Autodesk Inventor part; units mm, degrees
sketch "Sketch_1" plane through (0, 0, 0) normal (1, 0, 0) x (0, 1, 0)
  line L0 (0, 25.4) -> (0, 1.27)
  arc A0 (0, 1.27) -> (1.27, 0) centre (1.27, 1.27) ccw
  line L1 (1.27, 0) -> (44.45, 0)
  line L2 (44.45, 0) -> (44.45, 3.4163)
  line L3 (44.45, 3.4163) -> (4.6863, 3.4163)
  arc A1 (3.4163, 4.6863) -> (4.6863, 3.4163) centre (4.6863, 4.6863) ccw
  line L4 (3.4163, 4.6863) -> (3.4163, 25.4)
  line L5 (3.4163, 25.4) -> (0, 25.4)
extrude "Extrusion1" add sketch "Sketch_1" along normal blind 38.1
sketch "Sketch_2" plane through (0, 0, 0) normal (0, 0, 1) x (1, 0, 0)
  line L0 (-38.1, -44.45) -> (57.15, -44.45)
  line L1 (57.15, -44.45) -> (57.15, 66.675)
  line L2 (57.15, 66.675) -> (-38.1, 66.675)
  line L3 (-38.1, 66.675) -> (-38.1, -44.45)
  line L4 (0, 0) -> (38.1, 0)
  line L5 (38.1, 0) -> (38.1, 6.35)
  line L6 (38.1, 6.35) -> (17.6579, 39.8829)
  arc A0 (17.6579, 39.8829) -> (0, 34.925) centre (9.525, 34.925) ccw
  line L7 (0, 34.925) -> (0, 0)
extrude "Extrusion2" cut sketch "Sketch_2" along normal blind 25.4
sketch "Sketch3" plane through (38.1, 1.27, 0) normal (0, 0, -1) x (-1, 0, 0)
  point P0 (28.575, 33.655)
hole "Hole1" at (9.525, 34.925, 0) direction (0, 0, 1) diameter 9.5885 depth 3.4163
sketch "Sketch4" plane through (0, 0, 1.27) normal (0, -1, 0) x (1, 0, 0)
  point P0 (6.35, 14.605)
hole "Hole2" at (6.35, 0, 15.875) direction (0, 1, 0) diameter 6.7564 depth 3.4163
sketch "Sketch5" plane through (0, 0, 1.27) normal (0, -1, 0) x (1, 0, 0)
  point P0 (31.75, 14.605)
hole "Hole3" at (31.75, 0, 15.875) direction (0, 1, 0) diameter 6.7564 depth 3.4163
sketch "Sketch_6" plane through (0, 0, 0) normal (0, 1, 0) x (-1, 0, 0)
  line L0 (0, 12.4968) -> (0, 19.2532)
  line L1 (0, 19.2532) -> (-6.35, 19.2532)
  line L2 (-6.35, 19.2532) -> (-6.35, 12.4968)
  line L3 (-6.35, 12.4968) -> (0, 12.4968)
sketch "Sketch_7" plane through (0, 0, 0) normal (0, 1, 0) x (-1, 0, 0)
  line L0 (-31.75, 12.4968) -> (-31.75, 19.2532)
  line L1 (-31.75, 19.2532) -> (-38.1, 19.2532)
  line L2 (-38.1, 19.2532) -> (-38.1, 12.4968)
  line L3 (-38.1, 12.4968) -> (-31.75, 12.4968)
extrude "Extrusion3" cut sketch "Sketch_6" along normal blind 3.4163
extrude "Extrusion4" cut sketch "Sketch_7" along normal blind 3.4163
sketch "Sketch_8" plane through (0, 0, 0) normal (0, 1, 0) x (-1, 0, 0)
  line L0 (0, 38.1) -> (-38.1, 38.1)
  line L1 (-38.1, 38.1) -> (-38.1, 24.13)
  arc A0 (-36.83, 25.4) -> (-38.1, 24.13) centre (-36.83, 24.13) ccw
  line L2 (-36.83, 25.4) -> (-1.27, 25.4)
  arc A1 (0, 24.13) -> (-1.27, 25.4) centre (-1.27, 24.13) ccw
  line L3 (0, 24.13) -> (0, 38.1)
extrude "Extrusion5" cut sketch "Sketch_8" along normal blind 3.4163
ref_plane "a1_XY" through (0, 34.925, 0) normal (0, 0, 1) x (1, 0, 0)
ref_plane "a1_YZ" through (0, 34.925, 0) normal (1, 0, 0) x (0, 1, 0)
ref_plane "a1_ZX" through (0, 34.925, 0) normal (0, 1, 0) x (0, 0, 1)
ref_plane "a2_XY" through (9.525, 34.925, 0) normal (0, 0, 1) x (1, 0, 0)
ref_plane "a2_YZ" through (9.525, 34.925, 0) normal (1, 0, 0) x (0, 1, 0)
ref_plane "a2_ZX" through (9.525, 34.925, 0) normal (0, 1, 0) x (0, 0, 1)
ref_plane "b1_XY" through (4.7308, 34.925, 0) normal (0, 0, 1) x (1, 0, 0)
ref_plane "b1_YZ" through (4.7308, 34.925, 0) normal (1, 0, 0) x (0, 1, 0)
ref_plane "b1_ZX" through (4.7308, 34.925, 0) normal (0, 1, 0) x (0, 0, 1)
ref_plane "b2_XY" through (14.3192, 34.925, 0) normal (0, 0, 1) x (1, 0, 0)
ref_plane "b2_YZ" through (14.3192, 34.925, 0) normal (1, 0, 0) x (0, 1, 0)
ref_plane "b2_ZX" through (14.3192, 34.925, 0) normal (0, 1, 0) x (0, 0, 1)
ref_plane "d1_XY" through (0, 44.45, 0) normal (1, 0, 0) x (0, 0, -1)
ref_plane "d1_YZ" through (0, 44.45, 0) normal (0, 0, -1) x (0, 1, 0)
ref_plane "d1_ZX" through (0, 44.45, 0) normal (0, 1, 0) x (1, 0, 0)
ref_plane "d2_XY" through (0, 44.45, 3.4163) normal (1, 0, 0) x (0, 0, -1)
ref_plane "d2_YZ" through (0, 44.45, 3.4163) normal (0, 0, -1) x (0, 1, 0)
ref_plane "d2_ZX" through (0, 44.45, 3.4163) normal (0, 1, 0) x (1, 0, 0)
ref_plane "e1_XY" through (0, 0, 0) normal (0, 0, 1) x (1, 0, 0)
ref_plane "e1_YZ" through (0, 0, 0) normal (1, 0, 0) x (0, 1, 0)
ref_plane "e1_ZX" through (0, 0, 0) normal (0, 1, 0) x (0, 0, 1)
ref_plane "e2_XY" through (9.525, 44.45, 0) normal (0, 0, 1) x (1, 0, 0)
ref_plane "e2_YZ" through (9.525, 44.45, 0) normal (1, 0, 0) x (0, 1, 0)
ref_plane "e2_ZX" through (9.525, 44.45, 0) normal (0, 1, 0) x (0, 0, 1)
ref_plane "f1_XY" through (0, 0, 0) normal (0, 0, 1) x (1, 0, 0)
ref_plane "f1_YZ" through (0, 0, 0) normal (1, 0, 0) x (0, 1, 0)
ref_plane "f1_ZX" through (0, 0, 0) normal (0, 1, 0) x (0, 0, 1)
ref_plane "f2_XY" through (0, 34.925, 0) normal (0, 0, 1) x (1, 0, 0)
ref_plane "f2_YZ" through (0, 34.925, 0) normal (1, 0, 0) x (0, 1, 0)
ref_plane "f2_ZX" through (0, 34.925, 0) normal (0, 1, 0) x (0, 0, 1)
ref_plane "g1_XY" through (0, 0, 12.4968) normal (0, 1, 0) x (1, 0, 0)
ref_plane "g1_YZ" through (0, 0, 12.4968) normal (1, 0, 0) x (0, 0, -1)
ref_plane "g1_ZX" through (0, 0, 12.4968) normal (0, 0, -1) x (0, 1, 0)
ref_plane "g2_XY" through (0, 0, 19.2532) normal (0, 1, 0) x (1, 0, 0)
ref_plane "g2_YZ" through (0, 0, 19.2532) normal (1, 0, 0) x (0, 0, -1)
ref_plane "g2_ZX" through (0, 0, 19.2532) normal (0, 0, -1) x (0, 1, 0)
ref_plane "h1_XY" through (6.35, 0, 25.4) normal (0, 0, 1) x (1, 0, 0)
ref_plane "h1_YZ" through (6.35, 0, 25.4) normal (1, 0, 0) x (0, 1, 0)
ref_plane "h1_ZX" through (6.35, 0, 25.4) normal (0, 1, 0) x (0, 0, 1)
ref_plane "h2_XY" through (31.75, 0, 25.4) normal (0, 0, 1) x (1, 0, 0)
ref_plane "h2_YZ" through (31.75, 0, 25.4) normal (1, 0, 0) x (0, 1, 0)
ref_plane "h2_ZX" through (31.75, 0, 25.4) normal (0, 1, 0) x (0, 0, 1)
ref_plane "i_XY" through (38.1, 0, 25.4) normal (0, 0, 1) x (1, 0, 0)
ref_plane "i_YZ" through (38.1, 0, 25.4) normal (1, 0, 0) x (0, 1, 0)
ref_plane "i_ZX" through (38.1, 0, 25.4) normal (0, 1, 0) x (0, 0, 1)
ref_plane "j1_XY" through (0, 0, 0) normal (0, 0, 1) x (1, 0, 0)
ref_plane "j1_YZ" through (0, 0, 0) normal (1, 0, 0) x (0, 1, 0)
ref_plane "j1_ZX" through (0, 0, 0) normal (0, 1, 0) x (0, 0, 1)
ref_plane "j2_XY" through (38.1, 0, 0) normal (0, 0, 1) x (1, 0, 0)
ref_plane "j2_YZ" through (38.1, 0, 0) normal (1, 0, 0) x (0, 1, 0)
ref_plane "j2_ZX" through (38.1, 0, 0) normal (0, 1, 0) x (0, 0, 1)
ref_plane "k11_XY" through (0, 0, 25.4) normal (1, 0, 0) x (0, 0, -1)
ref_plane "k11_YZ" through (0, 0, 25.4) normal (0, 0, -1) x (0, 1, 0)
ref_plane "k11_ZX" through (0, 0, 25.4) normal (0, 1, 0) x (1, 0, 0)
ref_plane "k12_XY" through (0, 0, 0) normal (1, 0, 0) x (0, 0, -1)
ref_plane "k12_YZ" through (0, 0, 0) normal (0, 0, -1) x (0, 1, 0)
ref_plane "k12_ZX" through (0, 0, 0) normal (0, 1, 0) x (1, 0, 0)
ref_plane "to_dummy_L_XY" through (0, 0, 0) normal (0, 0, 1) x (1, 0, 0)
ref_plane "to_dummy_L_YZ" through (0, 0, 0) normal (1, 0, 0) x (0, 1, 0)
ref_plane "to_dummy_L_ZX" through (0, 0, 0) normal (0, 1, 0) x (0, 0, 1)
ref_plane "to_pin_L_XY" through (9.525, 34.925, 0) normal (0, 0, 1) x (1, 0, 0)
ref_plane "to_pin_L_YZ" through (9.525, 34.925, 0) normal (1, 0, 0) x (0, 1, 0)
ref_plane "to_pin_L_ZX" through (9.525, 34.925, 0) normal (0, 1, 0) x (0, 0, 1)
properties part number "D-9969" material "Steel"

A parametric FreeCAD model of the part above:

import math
import FreeCAD as App
import Part
import Sketcher
Q = App.Units.Quantity


def add_polygon(sketch, points):
    """Adds a closed chain of lines whose ends are joined by coincident constraints."""
    first, n = sketch.GeometryCount, len(points)
    for a, b in zip(points, points[1:] + points[:1]):
        sketch.addGeometry(Part.LineSegment(App.Vector(*a, 0), App.Vector(*b, 0)), False)
    for i in range(n):
        sketch.addConstraint(Sketcher.Constraint("Coincident", first + i, 2, first + (i + 1) % n, 1))

doc = App.newDocument("Part")
params = doc.addObject("Spreadsheet::Sheet", "Params")
for row, (alias, value) in enumerate([
    ("sketch1_radius", "0.05 in"),
    ("sketch1_width", "1.7 in"),
    ("pad1_length", "1.5 in"),
    ("sketch2_width", "1.5 in"),
    ("sketch2_radius", "0.375 in"),
    ("sketch2_width2", "3.75 in"),
    ("sketch2_height", "0.25 in"),
    ("sketch2_height2", "4.375 in"),
    ("pocket1_length", "1 in"),
    ("hole_diameter", "0.3775 in"),
    ("hole_depth", "0.1345 in"),
    ("sketch4_diameter", "0.266 in"),
    ("hole2_diameter", "0.266 in"),
    ("hole2_depth", "0.1345 in"),
    ("sketch5_diameter", "0.266 in"),
    ("hole3_diameter", "0.266 in"),
    ("hole3_depth", "0.1345 in"),
    ("sketch6_width", "0.25 in"),
    ("sketch6_height", "0.266 in"),
    ("pocket2_length", "0.1345 in"),
    ("sketch7_width", "0.25 in"),
    ("sketch7_height", "0.266 in"),
    ("pocket3_length", "0.1345 in"),
    ("sketch8_radius", "0.05 in"),
    ("sketch8_width", "1.5 in"),
    ("sketch8_height", "0.55 in"),
    ("pocket4_length", "0.1345 in"),
], start=1):
    params.set(f"A{row}", alias)
    params.set(f"B{row}", "=" + value)
    params.setAlias(f"B{row}", alias)

body = doc.addObject("PartDesign::Body", "Body")

sketch1 = body.newObject("Sketcher::SketchObject", "Sketch")
sketch1.AttachmentSupport = (doc.getObject("YZ_Plane"), [""])
sketch1.MapMode = "FlatFace"
sketch1.addGeometry([
    Part.LineSegment(App.Vector(3.4163, 25.4, 0), App.Vector(0, 25.4, 0)),
    Part.LineSegment(App.Vector(0, 25.4, 0), App.Vector(0, 1.27, 0)),
    Part.ArcOfCircle(Part.Circle(App.Vector(1.27, 1.27, 0), App.Vector(0, 0, 1), 1.27), math.radians(180), math.radians(270)),
    Part.LineSegment(App.Vector(1.27, 0, 0), App.Vector(44.45, 0, 0)),
    Part.LineSegment(App.Vector(44.45, 0, 0), App.Vector(44.45, 3.4163, 0)),
    Part.LineSegment(App.Vector(44.45, 3.4163, 0), App.Vector(4.6863, 3.4163, 0)),
    Part.ArcOfCircle(Part.Circle(App.Vector(4.6863, 4.6863, 0), App.Vector(0, 0, 1), 1.27), math.radians(180), math.radians(270)),
    Part.LineSegment(App.Vector(3.4163, 4.6863, 0), App.Vector(3.4163, 25.4, 0)),
], False)
sketch1.addConstraint([
    Sketcher.Constraint("Coincident", 0, 2, 1, 1),
    Sketcher.Constraint("Tangent", 1, 2, 2, 1),
    Sketcher.Constraint("Tangent", 2, 2, 3, 1),
    Sketcher.Constraint("Coincident", 3, 2, 4, 1),
    Sketcher.Constraint("Coincident", 4, 2, 5, 1),
    Sketcher.Constraint("Tangent", 5, 2, 6, 2),
    Sketcher.Constraint("Tangent", 6, 1, 7, 1),
    Sketcher.Constraint("Coincident", 7, 2, 0, 1),
    Sketcher.Constraint("Horizontal", 0),
    Sketcher.Constraint("Vertical", 1),
    Sketcher.Constraint("Horizontal", 3),
    Sketcher.Constraint("Vertical", 4),
    Sketcher.Constraint("Horizontal", 5),
    Sketcher.Constraint("Vertical", 7),
    Sketcher.Constraint("Equal", 2, 6),
    Sketcher.Constraint("PointOnObject", 0, 2, -2),
    Sketcher.Constraint("PointOnObject", 2, 2, -1),
    Sketcher.Constraint("Equal", 0, 4),
    Sketcher.Constraint("Radius", 2, Q("0.05 in")),
    Sketcher.Constraint("DistanceX", 3, 1, 3, 2, Q("1.7 in")),
    Sketcher.Constraint("DistanceY", -1, 1, 0, 2, Q("1 in")),
    Sketcher.Constraint("DistanceX", 0, 2, 0, 1, Q("0.1345 in")),
])
sketch1.setExpression("Constraints[18]", "Params.sketch1_radius")
sketch1.setExpression("Constraints[19]", "Params.sketch1_width")
pad1 = body.newObject("PartDesign::Pad", "Pad")
pad1.Profile = sketch1
pad1.setExpression("Length", "Params.pad1_length")

sketch2 = body.newObject("Sketcher::SketchObject", "Sketch001")
sketch2.AttachmentSupport = (doc.getObject("XY_Plane"), [""])
sketch2.MapMode = "FlatFace"
add_polygon(sketch2, [(-38.1, 66.675), (-38.1, -44.45), (57.15, -44.45), (57.15, 66.675)])
sketch2.addGeometry(Part.LineSegment(App.Vector(38.1, 0, 0), App.Vector(0, 0, 0)), False)
sketch2.addGeometry(Part.LineSegment(App.Vector(0, 0, 0), App.Vector(0, 34.925, 0)), False)
sketch2.addGeometry(Part.ArcOfCircle(Part.Circle(App.Vector(9.525, 34.925, 0), App.Vector(0, 0, 1), 9.524959), math.radians(31.366917), math.radians(180)), False)
sketch2.addGeometry(Part.LineSegment(App.Vector(17.6579, 39.8829, 0), App.Vector(38.1, 6.35, 0)), False)
sketch2.addGeometry(Part.LineSegment(App.Vector(38.1, 6.35, 0), App.Vector(38.1, 0, 0)), False)
sketch2.addConstraint([
    Sketcher.Constraint("Coincident", 4, 2, 5, 1),
    Sketcher.Constraint("Tangent", 5, 2, 6, 2),
    Sketcher.Constraint("Tangent", 6, 1, 7, 1),
    Sketcher.Constraint("Coincident", 7, 2, 8, 1),
    Sketcher.Constraint("Coincident", 8, 2, 4, 1),
    Sketcher.Constraint("Vertical", 0),
    Sketcher.Constraint("Horizontal", 1),
    Sketcher.Constraint("Vertical", 2),
    Sketcher.Constraint("Horizontal", 3),
    Sketcher.Constraint("Horizontal", 4),
    Sketcher.Constraint("Vertical", 5),
    Sketcher.Constraint("Vertical", 8),
    Sketcher.Constraint("Coincident", 4, 2, -1, 1),
    Sketcher.Constraint("DistanceX", 4, 2, 4, 1, Q("1.5 in")),
    Sketcher.Constraint("Radius", 6, Q("0.375 in")),
    Sketcher.Constraint("DistanceY", 1, 2, 7, 2, Q("2 in")),
    Sketcher.Constraint("DistanceX", 1, 1, 1, 2, Q("3.75 in")),
    Sketcher.Constraint("DistanceY", 8, 2, 8, 1, Q("0.25 in")),
    Sketcher.Constraint("DistanceX", 0, 2, -1, 1, Q("1.5 in")),
    Sketcher.Constraint("DistanceY", 0, 2, 0, 1, Q("4.375 in")),
    Sketcher.Constraint("DistanceY", 5, 1, 5, 2, Q("1.375 in")),
])
sketch2.setExpression("Constraints[17]", "Params.sketch2_width")
sketch2.setExpression("Constraints[18]", "Params.sketch2_radius")
sketch2.setExpression("Constraints[20]", "Params.sketch2_width2")
sketch2.setExpression("Constraints[21]", "Params.sketch2_height")
sketch2.setExpression("Constraints[23]", "Params.sketch2_height2")
pocket1 = body.newObject("PartDesign::Pocket", "Pocket")
pocket1.Profile = sketch2
pocket1.setExpression("Length", "Params.pocket1_length")
pocket1.Reversed = True

sketch3 = body.newObject("Sketcher::SketchObject", "Sketch002")
sketch3.AttachmentSupport = (doc.getObject("XY_Plane"), [""])
sketch3.MapMode = "FlatFace"
sketch3.addGeometry(Part.Circle(App.Vector(9.525, 34.925, 0), App.Vector(0, 0, 1), 4.79425), False)
sketch3.addConstraint([
    Sketcher.Constraint("Diameter", 0, Q("0.3775 in")),
    Sketcher.Constraint("DistanceX", -1, 1, 0, 3, Q("0.375 in")),
    Sketcher.Constraint("DistanceY", -1, 1, 0, 3, Q("1.375 in")),
])
doc.recompute()
hole = body.newObject("PartDesign::Hole", "Hole")
hole.Profile = sketch3
hole.ThreadType = "None"
hole.setExpression("Diameter", "Params.hole_diameter")
hole.DepthType = "Dimension"
hole.setExpression("Depth", "Params.hole_depth")
hole.DrillPoint = "Flat"
hole.Reversed = True

sketch4 = body.newObject("Sketcher::SketchObject", "Sketch003")
sketch4.AttachmentSupport = (doc.getObject("XZ_Plane"), [""])
sketch4.MapMode = "FlatFace"
sketch4.addGeometry(Part.Circle(App.Vector(6.35, 15.875, 0), App.Vector(0, 0, 1), 3.3782), False)
sketch4.addConstraint([
    Sketcher.Constraint("Diameter", 0, Q("0.266 in")),
    Sketcher.Constraint("DistanceX", -1, 1, 0, 3, Q("0.25 in")),
    Sketcher.Constraint("DistanceY", -1, 1, 0, 3, Q("0.625 in")),
])
sketch4.setExpression("Constraints[0]", "Params.sketch4_diameter")
doc.recompute()
hole2 = body.newObject("PartDesign::Hole", "Hole001")
hole2.Profile = sketch4
hole2.ThreadType = "None"
hole2.setExpression("Diameter", "Params.hole2_diameter")
hole2.DepthType = "Dimension"
hole2.setExpression("Depth", "Params.hole2_depth")
hole2.DrillPoint = "Flat"

sketch5 = body.newObject("Sketcher::SketchObject", "Sketch004")
sketch5.AttachmentSupport = (doc.getObject("XZ_Plane"), [""])
sketch5.MapMode = "FlatFace"
sketch5.addGeometry(Part.Circle(App.Vector(31.75, 15.875, 0), App.Vector(0, 0, 1), 3.3782), False)
sketch5.addConstraint([
    Sketcher.Constraint("Diameter", 0, Q("0.266 in")),
    Sketcher.Constraint("DistanceX", -1, 1, 0, 3, Q("1.25 in")),
    Sketcher.Constraint("DistanceY", -1, 1, 0, 3, Q("0.625 in")),
])
sketch5.setExpression("Constraints[0]", "Params.sketch5_diameter")
doc.recompute()
hole3 = body.newObject("PartDesign::Hole", "Hole002")
hole3.Profile = sketch5
hole3.ThreadType = "None"
hole3.setExpression("Diameter", "Params.hole3_diameter")
hole3.DepthType = "Dimension"
hole3.setExpression("Depth", "Params.hole3_depth")
hole3.DrillPoint = "Flat"

sketch6 = body.newObject("Sketcher::SketchObject", "Sketch005")
sketch6.AttachmentSupport = (doc.getObject("XZ_Plane"), [""])
sketch6.MapMode = "FlatFace"
add_polygon(sketch6, [(6.35, 12.4968), (0, 12.4968), (0, 19.2532), (6.35, 19.2532)])
sketch6.addConstraint([
    Sketcher.Constraint("Horizontal", 0),
    Sketcher.Constraint("Vertical", 1),
    Sketcher.Constraint("Horizontal", 2),
    Sketcher.Constraint("Vertical", 3),
    Sketcher.Constraint("PointOnObject", 0, 2, -2),
    Sketcher.Constraint("DistanceX", 0, 2, 0, 1, Q("0.25 in")),
    Sketcher.Constraint("DistanceY", 1, 1, 1, 2, Q("0.266 in")),
    Sketcher.Constraint("DistanceY", -1, 1, 0, 2, Q("0.492 in")),
])
sketch6.setExpression("Constraints[9]", "Params.sketch6_width")
sketch6.setExpression("Constraints[10]", "Params.sketch6_height")
pocket2 = body.newObject("PartDesign::Pocket", "Pocket001")
pocket2.Profile = sketch6
pocket2.setExpression("Length", "Params.pocket2_length")

sketch7 = body.newObject("Sketcher::SketchObject", "Sketch006")
sketch7.AttachmentSupport = (doc.getObject("XZ_Plane"), [""])
sketch7.MapMode = "FlatFace"
add_polygon(sketch7, [(38.1, 12.4968), (31.75, 12.4968), (31.75, 19.2532), (38.1, 19.2532)])
sketch7.addConstraint([
    Sketcher.Constraint("Horizontal", 0),
    Sketcher.Constraint("Vertical", 1),
    Sketcher.Constraint("Horizontal", 2),
    Sketcher.Constraint("Vertical", 3),
    Sketcher.Constraint("DistanceX", 0, 2, 0, 1, Q("0.25 in")),
    Sketcher.Constraint("DistanceX", -1, 1, 2, 2, Q("1.5 in")),
    Sketcher.Constraint("DistanceY", 1, 1, 1, 2, Q("0.266 in")),
    Sketcher.Constraint("DistanceY", -1, 1, 0, 2, Q("0.492 in")),
])
sketch7.setExpression("Constraints[8]", "Params.sketch7_width")
sketch7.setExpression("Constraints[10]", "Params.sketch7_height")
pocket3 = body.newObject("PartDesign::Pocket", "Pocket002")
pocket3.Profile = sketch7
pocket3.setExpression("Length", "Params.pocket3_length")

sketch8 = body.newObject("Sketcher::SketchObject", "Sketch007")
sketch8.AttachmentSupport = (doc.getObject("XZ_Plane"), [""])
sketch8.MapMode = "FlatFace"
sketch8.addGeometry([
    Part.LineSegment(App.Vector(0, 24.13, 0), App.Vector(0, 38.1, 0)),
    Part.LineSegment(App.Vector(0, 38.1, 0), App.Vector(38.1, 38.1, 0)),
    Part.LineSegment(App.Vector(38.1, 38.1, 0), App.Vector(38.1, 24.13, 0)),
    Part.ArcOfCircle(Part.Circle(App.Vector(36.83, 24.13, 0), App.Vector(0, 0, 1), 1.27), math.radians(0), math.radians(90)),
    Part.LineSegment(App.Vector(36.83, 25.4, 0), App.Vector(1.27, 25.4, 0)),
    Part.ArcOfCircle(Part.Circle(App.Vector(1.27, 24.13, 0), App.Vector(0, 0, 1), 1.27), math.radians(90), math.radians(180)),
], False)
sketch8.addConstraint([
    Sketcher.Constraint("Coincident", 0, 2, 1, 1),
    Sketcher.Constraint("Coincident", 1, 2, 2, 1),
    Sketcher.Constraint("Tangent", 2, 2, 3, 1),
    Sketcher.Constraint("Tangent", 3, 2, 4, 1),
    Sketcher.Constraint("Tangent", 4, 2, 5, 1),
    Sketcher.Constraint("Tangent", 5, 2, 0, 1),
    Sketcher.Constraint("Vertical", 0),
    Sketcher.Constraint("Horizontal", 1),
    Sketcher.Constraint("Vertical", 2),
    Sketcher.Constraint("Horizontal", 4),
    Sketcher.Constraint("Equal", 3, 5),
    Sketcher.Constraint("PointOnObject", 0, 2, -2),
    Sketcher.Constraint("Radius", 3, Q("0.05 in")),
    Sketcher.Constraint("DistanceX", 1, 1, 1, 2, Q("1.5 in")),
    Sketcher.Constraint("DistanceY", -1, 1, 3, 2, Q("1 in")),
    Sketcher.Constraint("DistanceY", 0, 1, 0, 2, Q("0.55 in")),
])
sketch8.setExpression("Constraints[12]", "Params.sketch8_radius")
sketch8.setExpression("Constraints[13]", "Params.sketch8_width")
sketch8.setExpression("Constraints[15]", "Params.sketch8_height")
pocket4 = body.newObject("PartDesign::Pocket", "Pocket003")
pocket4.Profile = sketch8
pocket4.setExpression("Length", "Params.pocket4_length")

doc.recompute()
